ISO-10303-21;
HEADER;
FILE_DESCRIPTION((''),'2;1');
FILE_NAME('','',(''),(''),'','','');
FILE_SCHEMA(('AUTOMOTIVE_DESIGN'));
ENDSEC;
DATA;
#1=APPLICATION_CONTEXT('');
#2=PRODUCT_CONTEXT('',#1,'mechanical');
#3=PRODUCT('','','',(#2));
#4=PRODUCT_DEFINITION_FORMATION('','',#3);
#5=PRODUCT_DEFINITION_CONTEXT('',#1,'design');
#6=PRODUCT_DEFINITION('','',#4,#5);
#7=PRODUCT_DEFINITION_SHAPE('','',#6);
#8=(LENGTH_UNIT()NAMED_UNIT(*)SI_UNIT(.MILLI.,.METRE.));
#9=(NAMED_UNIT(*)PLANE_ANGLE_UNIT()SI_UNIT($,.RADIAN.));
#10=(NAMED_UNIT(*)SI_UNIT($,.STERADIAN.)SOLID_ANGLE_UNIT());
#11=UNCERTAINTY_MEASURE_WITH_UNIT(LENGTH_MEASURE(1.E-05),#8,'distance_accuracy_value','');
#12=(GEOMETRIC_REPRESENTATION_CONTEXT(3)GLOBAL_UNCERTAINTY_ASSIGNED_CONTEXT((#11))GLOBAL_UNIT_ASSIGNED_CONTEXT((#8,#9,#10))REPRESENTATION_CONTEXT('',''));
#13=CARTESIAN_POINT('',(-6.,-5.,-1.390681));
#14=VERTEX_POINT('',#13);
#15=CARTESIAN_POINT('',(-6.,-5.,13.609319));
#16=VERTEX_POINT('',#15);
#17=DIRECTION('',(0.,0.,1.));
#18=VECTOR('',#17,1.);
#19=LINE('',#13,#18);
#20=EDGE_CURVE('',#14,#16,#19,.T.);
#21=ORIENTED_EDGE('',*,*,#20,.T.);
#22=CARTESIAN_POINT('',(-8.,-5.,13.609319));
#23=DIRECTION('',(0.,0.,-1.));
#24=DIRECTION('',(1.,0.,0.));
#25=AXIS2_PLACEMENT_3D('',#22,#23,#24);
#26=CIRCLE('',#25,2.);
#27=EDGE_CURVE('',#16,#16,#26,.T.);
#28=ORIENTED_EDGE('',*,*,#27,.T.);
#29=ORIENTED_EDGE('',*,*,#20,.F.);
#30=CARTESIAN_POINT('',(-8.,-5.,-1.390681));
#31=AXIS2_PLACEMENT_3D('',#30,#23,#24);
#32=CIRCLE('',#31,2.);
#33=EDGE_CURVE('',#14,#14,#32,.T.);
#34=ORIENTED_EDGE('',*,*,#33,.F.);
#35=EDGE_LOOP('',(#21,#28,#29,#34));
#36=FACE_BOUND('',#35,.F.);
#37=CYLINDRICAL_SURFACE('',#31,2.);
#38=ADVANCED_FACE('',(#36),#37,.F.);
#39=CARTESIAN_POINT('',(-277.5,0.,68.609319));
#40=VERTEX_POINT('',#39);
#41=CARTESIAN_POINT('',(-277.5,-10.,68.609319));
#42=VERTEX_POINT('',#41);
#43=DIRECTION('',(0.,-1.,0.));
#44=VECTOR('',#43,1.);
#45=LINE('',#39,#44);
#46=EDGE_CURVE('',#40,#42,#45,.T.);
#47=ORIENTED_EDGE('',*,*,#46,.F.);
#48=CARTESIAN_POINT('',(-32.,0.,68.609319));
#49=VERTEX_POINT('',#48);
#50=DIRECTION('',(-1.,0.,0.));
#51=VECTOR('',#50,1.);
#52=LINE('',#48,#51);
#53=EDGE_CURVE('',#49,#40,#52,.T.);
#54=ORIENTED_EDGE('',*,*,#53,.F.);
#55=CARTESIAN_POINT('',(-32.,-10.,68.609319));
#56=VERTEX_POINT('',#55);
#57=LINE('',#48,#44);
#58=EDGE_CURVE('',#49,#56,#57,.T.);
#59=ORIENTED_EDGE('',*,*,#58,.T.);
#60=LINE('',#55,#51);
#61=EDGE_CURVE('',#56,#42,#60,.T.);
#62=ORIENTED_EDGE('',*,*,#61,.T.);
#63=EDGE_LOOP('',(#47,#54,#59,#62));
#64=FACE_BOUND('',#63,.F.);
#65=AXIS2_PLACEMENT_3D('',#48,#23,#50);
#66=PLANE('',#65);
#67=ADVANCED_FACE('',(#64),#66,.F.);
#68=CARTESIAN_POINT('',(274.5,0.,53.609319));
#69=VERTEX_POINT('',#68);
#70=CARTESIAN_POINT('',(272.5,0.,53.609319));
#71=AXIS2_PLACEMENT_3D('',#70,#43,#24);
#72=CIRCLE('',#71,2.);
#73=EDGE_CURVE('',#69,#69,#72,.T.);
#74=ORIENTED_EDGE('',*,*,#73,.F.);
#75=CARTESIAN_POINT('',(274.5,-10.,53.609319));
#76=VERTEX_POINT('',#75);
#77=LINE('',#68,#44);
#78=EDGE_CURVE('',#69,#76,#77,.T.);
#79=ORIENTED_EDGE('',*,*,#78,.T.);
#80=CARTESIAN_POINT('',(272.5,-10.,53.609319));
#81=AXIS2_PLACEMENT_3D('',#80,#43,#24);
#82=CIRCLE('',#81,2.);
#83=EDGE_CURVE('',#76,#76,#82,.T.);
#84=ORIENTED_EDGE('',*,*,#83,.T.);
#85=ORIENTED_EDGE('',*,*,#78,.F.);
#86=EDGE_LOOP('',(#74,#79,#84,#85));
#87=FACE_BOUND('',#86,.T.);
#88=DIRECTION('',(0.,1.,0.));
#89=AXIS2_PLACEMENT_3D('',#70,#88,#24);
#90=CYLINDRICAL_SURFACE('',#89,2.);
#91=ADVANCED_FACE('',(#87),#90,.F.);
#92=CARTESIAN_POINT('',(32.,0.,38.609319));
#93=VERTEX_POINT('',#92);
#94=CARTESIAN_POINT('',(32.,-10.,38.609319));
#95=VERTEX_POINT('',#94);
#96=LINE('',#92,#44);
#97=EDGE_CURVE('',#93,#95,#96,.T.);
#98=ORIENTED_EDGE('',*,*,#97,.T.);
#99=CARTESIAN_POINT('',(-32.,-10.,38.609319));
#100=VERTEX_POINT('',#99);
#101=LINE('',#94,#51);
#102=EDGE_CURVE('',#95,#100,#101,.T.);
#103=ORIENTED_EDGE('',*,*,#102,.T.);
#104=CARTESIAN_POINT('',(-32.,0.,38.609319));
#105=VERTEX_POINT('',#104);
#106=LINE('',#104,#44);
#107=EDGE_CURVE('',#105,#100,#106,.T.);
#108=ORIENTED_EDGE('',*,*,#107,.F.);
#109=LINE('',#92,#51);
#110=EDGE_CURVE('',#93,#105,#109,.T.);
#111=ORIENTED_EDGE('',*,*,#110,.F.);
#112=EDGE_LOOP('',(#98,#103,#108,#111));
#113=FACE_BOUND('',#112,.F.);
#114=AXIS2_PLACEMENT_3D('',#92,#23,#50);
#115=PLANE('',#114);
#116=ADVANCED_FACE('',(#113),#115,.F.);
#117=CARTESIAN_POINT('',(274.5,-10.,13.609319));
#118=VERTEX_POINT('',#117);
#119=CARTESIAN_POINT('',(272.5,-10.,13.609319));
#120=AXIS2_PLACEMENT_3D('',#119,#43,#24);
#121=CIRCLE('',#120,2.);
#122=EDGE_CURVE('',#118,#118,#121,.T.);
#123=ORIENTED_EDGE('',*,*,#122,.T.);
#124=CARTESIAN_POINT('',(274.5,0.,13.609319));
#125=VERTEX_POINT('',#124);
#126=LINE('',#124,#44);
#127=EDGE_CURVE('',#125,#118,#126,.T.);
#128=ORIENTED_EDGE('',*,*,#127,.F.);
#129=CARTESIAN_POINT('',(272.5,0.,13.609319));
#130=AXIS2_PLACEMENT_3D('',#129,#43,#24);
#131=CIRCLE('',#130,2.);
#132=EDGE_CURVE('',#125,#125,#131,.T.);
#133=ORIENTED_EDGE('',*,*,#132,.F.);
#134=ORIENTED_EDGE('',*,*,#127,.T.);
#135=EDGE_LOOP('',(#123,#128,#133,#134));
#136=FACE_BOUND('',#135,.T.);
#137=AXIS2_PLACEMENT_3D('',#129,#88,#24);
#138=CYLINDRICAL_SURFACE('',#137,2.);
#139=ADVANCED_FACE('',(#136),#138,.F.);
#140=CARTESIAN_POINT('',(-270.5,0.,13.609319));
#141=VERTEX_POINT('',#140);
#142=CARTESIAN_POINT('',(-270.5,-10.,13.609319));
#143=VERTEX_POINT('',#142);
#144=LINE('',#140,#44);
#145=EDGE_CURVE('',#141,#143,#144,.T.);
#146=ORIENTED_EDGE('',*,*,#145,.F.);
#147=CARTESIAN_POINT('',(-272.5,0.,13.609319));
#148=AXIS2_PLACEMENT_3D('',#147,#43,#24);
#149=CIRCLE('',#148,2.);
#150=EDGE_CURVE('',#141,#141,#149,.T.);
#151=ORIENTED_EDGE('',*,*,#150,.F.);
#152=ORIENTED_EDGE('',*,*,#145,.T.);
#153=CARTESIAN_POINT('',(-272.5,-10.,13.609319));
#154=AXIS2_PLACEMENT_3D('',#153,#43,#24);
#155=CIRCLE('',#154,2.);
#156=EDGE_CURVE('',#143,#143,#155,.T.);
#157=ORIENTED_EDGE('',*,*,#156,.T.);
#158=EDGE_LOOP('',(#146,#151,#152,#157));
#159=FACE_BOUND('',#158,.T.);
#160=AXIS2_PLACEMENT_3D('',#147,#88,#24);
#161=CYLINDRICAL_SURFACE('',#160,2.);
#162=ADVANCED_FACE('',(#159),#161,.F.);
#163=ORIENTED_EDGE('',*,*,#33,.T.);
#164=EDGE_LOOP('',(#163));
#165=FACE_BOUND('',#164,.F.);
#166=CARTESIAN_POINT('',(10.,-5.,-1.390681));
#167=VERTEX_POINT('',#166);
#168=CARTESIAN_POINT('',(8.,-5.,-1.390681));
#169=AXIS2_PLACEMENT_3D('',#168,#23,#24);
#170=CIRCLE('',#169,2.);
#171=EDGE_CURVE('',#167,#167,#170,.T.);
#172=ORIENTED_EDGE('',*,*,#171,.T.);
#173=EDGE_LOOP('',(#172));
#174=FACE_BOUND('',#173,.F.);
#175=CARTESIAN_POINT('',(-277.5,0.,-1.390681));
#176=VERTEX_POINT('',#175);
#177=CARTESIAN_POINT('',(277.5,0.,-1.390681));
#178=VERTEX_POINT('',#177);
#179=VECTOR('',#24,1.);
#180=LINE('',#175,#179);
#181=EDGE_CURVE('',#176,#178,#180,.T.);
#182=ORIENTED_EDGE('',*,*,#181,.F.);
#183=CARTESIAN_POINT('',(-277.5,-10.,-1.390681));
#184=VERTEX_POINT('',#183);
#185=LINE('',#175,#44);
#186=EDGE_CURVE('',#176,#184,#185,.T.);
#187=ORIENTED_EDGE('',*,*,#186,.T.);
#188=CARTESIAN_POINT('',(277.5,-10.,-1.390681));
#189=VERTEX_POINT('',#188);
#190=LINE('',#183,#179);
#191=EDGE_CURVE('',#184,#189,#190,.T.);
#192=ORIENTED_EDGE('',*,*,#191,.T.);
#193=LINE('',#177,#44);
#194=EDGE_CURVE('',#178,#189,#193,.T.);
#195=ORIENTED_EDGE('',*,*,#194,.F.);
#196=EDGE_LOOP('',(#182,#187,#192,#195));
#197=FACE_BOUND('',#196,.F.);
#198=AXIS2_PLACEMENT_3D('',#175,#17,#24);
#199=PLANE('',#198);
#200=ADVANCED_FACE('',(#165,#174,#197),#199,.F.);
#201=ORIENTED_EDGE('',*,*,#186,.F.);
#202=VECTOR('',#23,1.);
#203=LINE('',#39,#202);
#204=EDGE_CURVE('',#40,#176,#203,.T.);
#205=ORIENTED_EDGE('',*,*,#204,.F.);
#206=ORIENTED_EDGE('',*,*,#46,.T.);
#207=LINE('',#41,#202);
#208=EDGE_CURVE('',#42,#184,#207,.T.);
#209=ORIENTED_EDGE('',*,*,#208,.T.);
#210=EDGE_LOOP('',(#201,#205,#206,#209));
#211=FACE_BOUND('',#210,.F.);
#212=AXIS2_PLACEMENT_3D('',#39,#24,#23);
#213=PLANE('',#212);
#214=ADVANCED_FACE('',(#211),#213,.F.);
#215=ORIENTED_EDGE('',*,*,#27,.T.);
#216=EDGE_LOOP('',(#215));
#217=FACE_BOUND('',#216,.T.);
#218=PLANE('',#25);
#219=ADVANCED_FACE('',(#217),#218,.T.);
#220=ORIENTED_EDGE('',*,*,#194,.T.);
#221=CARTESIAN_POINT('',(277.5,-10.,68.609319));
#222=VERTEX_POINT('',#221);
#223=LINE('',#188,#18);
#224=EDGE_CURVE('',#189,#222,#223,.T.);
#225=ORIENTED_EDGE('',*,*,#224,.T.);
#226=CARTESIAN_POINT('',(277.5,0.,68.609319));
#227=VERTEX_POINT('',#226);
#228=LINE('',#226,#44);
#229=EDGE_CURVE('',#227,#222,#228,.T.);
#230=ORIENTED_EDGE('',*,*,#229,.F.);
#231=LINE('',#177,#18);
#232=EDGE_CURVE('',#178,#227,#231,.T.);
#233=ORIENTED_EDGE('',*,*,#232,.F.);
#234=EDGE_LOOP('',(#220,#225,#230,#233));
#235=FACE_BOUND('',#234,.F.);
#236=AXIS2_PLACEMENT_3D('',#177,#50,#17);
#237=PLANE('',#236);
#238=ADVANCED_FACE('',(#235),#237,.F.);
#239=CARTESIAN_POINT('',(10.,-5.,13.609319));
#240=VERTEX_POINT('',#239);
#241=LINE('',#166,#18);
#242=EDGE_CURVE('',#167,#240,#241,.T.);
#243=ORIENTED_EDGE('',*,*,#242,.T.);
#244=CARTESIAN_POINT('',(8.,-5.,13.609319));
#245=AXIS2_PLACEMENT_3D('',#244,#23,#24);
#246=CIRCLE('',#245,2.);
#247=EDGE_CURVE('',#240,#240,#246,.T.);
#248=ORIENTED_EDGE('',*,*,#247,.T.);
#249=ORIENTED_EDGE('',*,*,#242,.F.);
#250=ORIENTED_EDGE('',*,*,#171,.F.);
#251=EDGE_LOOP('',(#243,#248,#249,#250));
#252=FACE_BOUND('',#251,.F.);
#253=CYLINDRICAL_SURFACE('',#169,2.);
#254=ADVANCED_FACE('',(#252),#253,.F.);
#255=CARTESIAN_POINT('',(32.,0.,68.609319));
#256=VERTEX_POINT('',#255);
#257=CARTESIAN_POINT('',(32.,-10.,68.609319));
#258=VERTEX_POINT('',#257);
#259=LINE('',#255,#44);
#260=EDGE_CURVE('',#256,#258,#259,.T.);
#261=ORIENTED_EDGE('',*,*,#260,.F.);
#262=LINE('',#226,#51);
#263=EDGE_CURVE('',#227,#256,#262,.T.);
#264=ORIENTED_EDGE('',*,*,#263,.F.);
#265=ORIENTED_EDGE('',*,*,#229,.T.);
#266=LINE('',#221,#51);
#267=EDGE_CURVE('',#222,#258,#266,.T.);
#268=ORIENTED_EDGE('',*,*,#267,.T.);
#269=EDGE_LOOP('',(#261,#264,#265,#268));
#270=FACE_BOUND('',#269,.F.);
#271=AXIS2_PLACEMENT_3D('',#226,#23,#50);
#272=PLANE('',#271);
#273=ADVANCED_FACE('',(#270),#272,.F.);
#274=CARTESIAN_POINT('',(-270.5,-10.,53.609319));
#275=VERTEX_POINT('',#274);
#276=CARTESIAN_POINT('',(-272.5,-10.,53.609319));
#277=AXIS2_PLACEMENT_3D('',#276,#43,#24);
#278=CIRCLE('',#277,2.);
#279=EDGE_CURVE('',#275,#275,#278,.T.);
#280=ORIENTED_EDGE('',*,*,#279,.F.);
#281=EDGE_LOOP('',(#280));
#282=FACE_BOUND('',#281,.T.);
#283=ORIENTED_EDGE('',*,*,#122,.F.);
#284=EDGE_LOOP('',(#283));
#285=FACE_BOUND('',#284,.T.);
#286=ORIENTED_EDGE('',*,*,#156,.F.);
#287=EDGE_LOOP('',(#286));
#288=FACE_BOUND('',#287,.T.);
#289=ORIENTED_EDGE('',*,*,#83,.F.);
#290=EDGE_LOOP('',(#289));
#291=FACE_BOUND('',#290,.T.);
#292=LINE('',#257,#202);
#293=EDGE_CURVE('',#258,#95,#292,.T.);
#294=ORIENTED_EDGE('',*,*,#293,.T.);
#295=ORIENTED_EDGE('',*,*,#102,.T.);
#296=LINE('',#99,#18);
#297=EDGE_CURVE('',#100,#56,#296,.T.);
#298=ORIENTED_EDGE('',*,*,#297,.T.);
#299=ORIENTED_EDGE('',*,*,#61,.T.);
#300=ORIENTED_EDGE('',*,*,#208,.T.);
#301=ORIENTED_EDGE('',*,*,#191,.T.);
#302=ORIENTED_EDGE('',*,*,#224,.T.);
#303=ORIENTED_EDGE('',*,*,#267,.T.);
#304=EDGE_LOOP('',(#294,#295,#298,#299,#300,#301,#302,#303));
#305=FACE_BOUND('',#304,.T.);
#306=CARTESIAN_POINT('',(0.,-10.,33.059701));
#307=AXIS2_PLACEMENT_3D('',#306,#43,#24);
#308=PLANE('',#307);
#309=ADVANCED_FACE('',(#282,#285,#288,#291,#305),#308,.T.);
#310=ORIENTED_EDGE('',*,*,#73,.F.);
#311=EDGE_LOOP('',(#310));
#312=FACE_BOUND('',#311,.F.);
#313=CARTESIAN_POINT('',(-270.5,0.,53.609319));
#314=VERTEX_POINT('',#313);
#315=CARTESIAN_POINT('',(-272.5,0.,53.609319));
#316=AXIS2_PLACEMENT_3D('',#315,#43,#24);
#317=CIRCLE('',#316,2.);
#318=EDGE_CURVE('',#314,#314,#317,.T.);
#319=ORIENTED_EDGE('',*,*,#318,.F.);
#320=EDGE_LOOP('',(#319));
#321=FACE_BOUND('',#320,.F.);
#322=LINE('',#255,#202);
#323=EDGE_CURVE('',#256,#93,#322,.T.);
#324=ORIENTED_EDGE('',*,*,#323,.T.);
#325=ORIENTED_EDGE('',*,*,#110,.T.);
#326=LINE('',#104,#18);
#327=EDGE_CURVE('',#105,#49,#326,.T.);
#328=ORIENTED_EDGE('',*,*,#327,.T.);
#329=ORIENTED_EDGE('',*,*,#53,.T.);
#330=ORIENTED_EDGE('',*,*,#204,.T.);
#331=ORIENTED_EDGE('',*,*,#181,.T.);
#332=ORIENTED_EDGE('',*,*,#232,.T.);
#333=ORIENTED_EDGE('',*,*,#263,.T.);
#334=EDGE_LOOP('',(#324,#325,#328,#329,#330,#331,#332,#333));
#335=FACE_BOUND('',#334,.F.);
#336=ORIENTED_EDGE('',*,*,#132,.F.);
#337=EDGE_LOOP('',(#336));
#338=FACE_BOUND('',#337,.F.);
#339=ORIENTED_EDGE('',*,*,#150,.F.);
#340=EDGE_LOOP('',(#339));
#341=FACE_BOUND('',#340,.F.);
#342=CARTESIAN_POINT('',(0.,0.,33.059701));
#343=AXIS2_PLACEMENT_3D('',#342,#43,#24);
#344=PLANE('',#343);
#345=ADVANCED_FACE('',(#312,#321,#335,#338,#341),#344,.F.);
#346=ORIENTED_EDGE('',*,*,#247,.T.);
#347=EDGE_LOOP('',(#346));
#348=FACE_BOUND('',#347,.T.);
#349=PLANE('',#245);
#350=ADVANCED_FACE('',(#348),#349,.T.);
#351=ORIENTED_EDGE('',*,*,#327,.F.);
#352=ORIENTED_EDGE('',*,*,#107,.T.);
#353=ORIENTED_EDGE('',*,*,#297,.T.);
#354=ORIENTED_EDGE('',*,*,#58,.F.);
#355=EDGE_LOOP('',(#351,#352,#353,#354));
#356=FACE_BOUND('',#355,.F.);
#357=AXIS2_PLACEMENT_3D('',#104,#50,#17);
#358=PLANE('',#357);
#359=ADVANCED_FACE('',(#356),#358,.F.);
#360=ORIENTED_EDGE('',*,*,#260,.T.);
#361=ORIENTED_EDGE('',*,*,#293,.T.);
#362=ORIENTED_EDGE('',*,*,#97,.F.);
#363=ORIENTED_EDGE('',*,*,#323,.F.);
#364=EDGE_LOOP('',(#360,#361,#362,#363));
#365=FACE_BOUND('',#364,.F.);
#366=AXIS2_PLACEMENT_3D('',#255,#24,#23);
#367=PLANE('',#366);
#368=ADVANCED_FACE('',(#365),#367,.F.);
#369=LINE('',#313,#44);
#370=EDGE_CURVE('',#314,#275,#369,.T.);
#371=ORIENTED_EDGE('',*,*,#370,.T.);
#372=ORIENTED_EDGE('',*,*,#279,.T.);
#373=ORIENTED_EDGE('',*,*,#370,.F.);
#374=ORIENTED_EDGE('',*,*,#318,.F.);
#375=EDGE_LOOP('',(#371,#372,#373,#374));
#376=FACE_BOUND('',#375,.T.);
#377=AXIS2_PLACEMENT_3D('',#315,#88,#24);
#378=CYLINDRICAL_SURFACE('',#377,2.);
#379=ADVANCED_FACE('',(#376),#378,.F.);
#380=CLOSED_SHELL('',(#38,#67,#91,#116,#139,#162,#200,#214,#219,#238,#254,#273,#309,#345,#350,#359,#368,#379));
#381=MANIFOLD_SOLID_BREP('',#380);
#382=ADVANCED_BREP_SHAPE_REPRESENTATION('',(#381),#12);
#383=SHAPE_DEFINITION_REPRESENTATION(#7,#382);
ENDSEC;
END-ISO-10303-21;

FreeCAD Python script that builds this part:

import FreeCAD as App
import Part
import Sketcher

V = App.Vector

doc = App.newDocument("Part")
body = doc.addObject("PartDesign::Body", "Body")

sketch1 = doc.addObject("Sketcher::SketchObject", "Sketch")
body.addObject(sketch1)
sketch1.AttachmentSupport = (doc.XZ_Plane, [""])
sketch1.MapMode = "FlatFace"
sketch1.addGeometry(Part.LineSegment(V(-32, 68.609319, 0), V(-277.5, 68.609319, 0)), False)
sketch1.addGeometry(Part.LineSegment(V(-277.5, 68.609319, 0), V(-277.5, -1.390681, 0)), False)
sketch1.addGeometry(Part.LineSegment(V(-277.5, -1.390681, 0), V(277.5, -1.390681, 0)), False)
sketch1.addGeometry(Part.LineSegment(V(277.5, -1.390681, 0), V(277.5, 68.609319, 0)), False)
sketch1.addGeometry(Part.LineSegment(V(277.5, 68.609319, 0), V(32, 68.609319, 0)), False)
sketch1.addGeometry(Part.LineSegment(V(32, 68.609319, 0), V(32, 38.609319, 0)), False)
sketch1.addGeometry(Part.LineSegment(V(32, 38.609319, 0), V(-32, 38.609319, 0)), False)
sketch1.addGeometry(Part.LineSegment(V(-32, 38.609319, 0), V(-32, 68.609319, 0)), False)
sketch1.addGeometry(Part.Circle(V(-272.5, 13.609319, 0), V(0, 0, 1), 2), False)
sketch1.addGeometry(Part.Circle(V(272.5, 13.609319, 0), V(0, 0, 1), 2), False)
sketch1.addGeometry(Part.Circle(V(-272.5, 53.609319, 0), V(0, 0, 1), 2), False)
sketch1.addGeometry(Part.Circle(V(272.5, 53.609319, 0), V(0, 0, 1), 2), False)
sketch1.addConstraint(Sketcher.Constraint("Coincident", 0, 2, 1, 1))
sketch1.addConstraint(Sketcher.Constraint("Coincident", 1, 2, 2, 1))
sketch1.addConstraint(Sketcher.Constraint("Coincident", 2, 2, 3, 1))
sketch1.addConstraint(Sketcher.Constraint("Coincident", 3, 2, 4, 1))
sketch1.addConstraint(Sketcher.Constraint("Coincident", 4, 2, 5, 1))
sketch1.addConstraint(Sketcher.Constraint("Coincident", 5, 2, 6, 1))
sketch1.addConstraint(Sketcher.Constraint("Coincident", 6, 2, 7, 1))
sketch1.addConstraint(Sketcher.Constraint("Coincident", 7, 2, 0, 1))
sketch1.addConstraint(Sketcher.Constraint("Horizontal", 0))
sketch1.addConstraint(Sketcher.Constraint("Vertical", 1))
sketch1.addConstraint(Sketcher.Constraint("Horizontal", 2))
sketch1.addConstraint(Sketcher.Constraint("Vertical", 3))
sketch1.addConstraint(Sketcher.Constraint("Horizontal", 4))
sketch1.addConstraint(Sketcher.Constraint("Vertical", 5))
sketch1.addConstraint(Sketcher.Constraint("Horizontal", 6))
sketch1.addConstraint(Sketcher.Constraint("Vertical", 7))
sketch1.addConstraint(Sketcher.Constraint("Equal", 8, 9))
sketch1.addConstraint(Sketcher.Constraint("Equal", 9, 10))
sketch1.addConstraint(Sketcher.Constraint("Equal", 10, 11))
sketch1.addConstraint(Sketcher.Constraint("Symmetric", 8, 3, 9, 3, -2))
sketch1.addConstraint(Sketcher.Constraint("Symmetric", 10, 3, 11, 3, -2))
sketch1.addConstraint(Sketcher.Constraint("Symmetric", 0, 2, 3, 2, -2))
sketch1.addConstraint(Sketcher.Constraint("Vertical", 8, 3, 10, 3))
sketch1.addConstraint(Sketcher.Constraint("Equal", 0, 4))
sketch1.addConstraint(Sketcher.Constraint("Diameter", 8, 4.0))
sketch1.addConstraint(Sketcher.Constraint("DistanceX", 2, 1, 2, 2, 555.0))
sketch1.addConstraint(Sketcher.Constraint("DistanceX", 6, 2, 6, 1, 64.0))
sketch1.addConstraint(Sketcher.Constraint("DistanceY", 1, 2, 1, 1, 70.0))
sketch1.addConstraint(Sketcher.Constraint("DistanceY", 5, 2, 5, 1, 30.0))
sketch1.addConstraint(Sketcher.Constraint("DistanceX", 8, 3, 9, 3, 545.0))
sketch1.addConstraint(Sketcher.Constraint("DistanceY", 8, 3, 10, 3, 40.0))
sketch1.addConstraint(Sketcher.Constraint("DistanceY", 10, 3, 0, 2, 15.0))
sketch1.addConstraint(Sketcher.Constraint("DistanceY", -1, 1, 8, 3, 13.609319))
pad1 = doc.addObject("PartDesign::Pad", "Pad")
body.addObject(pad1)
pad1.Profile = sketch1
pad1.Length = 10

sketch2 = doc.addObject("Sketcher::SketchObject", "Sketch001")
body.addObject(sketch2)
sketch2.AttachmentSupport = (doc.XY_Plane, [""])
sketch2.MapMode = "FlatFace"
sketch2.AttachmentOffset = App.Placement(V(0, 0, -1.390681), App.Rotation())
sketch2.addGeometry(Part.Circle(V(-8, -5, 0), V(0, 0, 1), 2), False)
sketch2.addGeometry(Part.Circle(V(8, -5, 0), V(0, 0, 1), 2), False)
sketch2.addConstraint(Sketcher.Constraint("Equal", 0, 1))
sketch2.addConstraint(Sketcher.Constraint("Symmetric", 0, 3, 1, 3, -2))
sketch2.addConstraint(Sketcher.Constraint("Diameter", 0, 4.0))
sketch2.addConstraint(Sketcher.Constraint("DistanceX", 0, 3, -1, 1, 8.0))
sketch2.addConstraint(Sketcher.Constraint("DistanceY", 0, 3, -1, 1, 5.0))
pocket1 = doc.addObject("PartDesign::Pocket", "Pocket")
body.addObject(pocket1)
pocket1.Profile = sketch2
pocket1.Length = 15
pocket1.Reversed = True

doc.recompute()
